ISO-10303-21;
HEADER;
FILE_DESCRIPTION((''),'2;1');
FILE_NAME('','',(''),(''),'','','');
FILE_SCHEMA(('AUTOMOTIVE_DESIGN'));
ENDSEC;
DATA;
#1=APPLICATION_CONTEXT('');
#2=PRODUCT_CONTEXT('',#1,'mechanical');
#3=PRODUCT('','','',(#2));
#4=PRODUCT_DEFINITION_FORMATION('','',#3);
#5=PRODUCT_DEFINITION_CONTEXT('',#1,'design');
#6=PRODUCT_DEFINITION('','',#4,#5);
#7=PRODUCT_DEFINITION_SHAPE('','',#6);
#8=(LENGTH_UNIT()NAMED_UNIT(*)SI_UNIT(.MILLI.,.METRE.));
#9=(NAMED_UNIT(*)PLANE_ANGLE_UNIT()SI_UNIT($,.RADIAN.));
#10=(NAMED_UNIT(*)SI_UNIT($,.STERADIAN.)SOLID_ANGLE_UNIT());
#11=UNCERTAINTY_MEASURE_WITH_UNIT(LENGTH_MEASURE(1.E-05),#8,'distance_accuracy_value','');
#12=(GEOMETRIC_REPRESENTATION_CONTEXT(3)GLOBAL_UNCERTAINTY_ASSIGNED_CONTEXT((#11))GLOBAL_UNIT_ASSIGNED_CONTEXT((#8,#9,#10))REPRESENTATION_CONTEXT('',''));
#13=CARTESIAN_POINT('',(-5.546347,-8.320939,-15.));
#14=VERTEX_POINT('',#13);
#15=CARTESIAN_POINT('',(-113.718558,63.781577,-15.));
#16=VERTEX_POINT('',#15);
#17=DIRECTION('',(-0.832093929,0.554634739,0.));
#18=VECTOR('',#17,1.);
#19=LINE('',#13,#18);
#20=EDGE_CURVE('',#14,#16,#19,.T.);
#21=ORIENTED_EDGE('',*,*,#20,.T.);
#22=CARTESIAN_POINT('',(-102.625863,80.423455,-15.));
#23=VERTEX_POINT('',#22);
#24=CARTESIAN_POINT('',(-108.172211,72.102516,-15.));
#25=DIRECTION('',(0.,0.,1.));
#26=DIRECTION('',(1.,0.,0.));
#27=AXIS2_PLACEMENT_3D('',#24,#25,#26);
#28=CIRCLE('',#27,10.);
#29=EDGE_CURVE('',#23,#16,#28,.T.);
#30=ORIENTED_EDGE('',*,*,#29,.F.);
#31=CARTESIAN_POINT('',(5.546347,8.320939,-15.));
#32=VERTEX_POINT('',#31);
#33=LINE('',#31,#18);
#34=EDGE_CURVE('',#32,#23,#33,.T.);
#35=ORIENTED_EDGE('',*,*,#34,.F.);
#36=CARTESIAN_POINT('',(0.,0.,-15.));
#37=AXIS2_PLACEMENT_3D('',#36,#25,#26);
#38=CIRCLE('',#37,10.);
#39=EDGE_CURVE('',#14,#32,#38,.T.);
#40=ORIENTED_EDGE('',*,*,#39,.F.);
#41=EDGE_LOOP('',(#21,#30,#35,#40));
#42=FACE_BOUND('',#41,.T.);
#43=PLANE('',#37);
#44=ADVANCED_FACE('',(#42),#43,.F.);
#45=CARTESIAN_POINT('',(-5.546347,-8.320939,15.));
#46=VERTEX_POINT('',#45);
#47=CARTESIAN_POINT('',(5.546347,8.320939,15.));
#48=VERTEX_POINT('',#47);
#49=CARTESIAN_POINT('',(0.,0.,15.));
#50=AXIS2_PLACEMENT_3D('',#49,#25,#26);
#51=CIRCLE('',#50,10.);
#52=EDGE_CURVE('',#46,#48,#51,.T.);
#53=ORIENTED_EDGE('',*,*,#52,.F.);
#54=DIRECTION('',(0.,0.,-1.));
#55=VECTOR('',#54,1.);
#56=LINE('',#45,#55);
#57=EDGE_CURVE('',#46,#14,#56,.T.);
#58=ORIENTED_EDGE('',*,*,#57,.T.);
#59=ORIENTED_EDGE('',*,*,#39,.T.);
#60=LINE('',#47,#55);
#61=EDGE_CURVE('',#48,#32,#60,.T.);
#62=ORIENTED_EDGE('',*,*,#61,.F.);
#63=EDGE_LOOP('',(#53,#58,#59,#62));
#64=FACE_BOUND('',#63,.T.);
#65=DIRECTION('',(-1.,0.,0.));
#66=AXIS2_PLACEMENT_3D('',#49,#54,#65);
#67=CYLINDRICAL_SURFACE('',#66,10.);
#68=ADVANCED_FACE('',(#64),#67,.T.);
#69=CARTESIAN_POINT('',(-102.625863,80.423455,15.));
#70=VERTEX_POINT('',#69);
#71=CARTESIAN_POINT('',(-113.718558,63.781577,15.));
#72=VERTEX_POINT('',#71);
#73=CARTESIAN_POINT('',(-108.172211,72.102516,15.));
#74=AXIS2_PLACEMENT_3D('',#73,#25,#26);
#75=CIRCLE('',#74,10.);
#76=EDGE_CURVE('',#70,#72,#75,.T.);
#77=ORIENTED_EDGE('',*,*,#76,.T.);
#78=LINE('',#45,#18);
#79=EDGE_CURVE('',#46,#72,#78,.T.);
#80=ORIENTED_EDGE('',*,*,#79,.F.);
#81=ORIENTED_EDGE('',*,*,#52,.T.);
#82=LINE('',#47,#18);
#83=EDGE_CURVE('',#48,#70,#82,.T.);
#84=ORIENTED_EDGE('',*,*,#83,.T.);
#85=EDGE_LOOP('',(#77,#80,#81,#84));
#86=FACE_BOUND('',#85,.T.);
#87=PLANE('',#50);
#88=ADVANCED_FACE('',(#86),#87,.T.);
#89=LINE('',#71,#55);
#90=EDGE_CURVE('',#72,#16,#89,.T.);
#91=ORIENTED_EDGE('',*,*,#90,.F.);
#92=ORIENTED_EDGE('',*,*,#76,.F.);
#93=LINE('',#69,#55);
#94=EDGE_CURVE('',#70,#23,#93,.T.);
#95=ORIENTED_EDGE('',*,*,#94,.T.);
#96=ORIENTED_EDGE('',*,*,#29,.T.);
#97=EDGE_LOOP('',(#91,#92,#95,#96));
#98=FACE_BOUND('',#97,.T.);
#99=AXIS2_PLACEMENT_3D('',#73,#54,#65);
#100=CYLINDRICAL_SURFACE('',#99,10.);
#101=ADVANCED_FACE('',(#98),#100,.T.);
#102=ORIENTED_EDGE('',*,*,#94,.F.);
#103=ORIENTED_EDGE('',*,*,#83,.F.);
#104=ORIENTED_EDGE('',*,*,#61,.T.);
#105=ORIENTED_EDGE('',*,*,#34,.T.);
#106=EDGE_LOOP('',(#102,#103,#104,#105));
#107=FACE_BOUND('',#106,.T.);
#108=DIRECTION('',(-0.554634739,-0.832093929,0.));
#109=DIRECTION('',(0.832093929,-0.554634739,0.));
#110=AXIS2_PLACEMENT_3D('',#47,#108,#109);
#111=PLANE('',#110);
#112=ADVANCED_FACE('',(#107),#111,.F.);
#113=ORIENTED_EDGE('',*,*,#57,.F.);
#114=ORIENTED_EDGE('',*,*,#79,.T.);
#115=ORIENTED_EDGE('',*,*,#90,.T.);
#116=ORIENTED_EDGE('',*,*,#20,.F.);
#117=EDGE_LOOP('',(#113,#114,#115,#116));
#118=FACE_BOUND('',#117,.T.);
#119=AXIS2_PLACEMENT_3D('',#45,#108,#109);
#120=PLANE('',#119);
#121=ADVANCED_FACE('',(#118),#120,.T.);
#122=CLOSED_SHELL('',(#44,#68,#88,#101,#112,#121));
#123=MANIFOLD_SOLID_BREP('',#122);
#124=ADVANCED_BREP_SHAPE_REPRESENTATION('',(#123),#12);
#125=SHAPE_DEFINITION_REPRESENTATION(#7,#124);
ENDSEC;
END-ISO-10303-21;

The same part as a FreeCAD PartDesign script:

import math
import FreeCAD as App
import Part
import Sketcher

V = App.Vector
Q = App.Units.Quantity

doc = App.newDocument("Part")
body = doc.addObject("PartDesign::Body", "Body")

# Sketch on XY plane
sketch1 = body.newObject("Sketcher::SketchObject", "Sketch")
sketch1.AttachmentSupport = (doc.getObject("XY_Plane"), [""])
sketch1.MapMode = "FlatFace"
sketch1.addGeometry([
    Part.LineSegment(V(-114, 64, 0), V(-6, -8, 0)),
    Part.ArcOfCircle(Part.Circle(V(0, 0, 0), V(0, 0, 1), 10), math.radians(-124), math.radians(56)),
    Part.LineSegment(V(6, 8, 0), V(-103, 80, 0)),
    Part.ArcOfCircle(Part.Circle(V(-108, 72, 0), V(0, 0, 1), 10), math.radians(56), math.radians(236)),
], False)
sketch1.addConstraint([
    Sketcher.Constraint("Tangent", 0, 2, 1, 1),
    Sketcher.Constraint("Tangent", 1, 2, 2, 1),
    Sketcher.Constraint("Tangent", 2, 2, 3, 1),
    Sketcher.Constraint("Tangent", 3, 2, 0, 1),
    Sketcher.Constraint("Coincident", 1, 3, -1, 1),
    Sketcher.Constraint("Equal", 1, 3),
    Sketcher.Constraint("Radius", 1, Q("10 mm")),
    Sketcher.Constraint("Distance", 0, Q("130 mm")),
    Sketcher.Constraint("DistanceX", 3, 3, -1, 1, Q("108.172211 mm")),
])
pad1 = body.newObject("PartDesign::Pad", "Pad")
pad1.Profile = sketch1
pad1.Length = 30
pad1.Midplane = True

doc.recompute()
